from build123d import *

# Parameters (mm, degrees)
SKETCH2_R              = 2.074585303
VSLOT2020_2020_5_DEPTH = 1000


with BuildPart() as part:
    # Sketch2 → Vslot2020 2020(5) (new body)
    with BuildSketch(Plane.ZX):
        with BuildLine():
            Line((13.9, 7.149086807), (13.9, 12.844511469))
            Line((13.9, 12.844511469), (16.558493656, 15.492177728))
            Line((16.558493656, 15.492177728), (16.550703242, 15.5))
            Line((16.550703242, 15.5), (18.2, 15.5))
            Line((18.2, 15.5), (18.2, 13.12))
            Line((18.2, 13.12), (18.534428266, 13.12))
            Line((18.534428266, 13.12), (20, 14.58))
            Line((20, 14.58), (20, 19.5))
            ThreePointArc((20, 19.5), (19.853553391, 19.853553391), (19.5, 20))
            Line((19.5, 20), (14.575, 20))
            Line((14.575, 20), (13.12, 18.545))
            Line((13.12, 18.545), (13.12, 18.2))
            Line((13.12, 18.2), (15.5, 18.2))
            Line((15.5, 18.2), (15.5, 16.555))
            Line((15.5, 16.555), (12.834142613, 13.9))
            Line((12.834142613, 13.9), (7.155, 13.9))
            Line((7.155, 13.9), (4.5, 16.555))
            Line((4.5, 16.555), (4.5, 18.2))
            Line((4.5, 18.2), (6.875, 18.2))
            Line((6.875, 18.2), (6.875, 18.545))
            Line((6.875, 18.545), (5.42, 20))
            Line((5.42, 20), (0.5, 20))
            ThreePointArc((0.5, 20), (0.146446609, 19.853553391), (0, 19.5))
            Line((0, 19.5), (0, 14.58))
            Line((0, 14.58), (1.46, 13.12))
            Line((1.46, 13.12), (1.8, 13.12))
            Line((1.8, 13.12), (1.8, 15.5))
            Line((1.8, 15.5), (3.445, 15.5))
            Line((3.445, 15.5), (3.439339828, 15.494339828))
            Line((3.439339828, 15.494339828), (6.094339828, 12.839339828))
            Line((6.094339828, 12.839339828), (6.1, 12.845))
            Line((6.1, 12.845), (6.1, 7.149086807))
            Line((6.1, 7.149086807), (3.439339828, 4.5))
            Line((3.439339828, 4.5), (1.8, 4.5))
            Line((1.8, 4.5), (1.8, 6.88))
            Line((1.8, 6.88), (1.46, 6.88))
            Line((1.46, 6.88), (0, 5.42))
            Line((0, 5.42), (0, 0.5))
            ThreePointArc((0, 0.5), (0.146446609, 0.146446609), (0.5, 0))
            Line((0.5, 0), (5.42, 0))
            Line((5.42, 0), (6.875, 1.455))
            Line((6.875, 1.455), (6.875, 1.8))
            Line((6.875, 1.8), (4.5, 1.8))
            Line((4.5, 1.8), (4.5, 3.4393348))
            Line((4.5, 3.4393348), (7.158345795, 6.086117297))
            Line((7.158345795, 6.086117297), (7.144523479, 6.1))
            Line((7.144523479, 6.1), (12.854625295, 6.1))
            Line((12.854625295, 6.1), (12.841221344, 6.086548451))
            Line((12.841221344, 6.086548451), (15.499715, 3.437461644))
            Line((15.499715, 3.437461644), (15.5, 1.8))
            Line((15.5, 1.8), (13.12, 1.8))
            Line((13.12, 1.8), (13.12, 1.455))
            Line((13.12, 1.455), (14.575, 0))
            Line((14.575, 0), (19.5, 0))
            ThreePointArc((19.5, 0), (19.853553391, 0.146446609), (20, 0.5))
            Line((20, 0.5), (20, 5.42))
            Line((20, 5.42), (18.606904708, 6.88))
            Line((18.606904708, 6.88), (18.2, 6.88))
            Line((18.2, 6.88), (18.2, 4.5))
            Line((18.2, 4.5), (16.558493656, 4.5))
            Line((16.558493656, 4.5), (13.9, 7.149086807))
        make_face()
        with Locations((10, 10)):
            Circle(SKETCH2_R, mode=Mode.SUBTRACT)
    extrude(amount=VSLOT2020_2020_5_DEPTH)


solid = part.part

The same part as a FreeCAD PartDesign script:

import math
import FreeCAD as App
import Part
import Sketcher
from FreeCAD import Vector
Q = App.Units.Quantity

doc = App.newDocument("Part")
body = doc.addObject("PartDesign::Body", "Body")

sketch1 = body.newObject("Sketcher::SketchObject", "Sketch")
sketch1.AttachmentSupport = (doc.getObject("XZ_Plane"), [""])
sketch1.MapMode = "FlatFace"
sketch1.addGeometry([
    Part.LineSegment(Vector(7.149, 13.9, 0), Vector(12.845, 13.9, 0)),
    Part.LineSegment(Vector(12.845, 13.9, 0), Vector(15.492, 16.558, 0)),
    Part.LineSegment(Vector(15.492, 16.558, 0), Vector(15.5, 16.551, 0)),
    Part.LineSegment(Vector(15.5, 16.551, 0), Vector(15.5, 18.2, 0)),
    Part.LineSegment(Vector(15.5, 18.2, 0), Vector(13.12, 18.2, 0)),
    Part.LineSegment(Vector(13.12, 18.2, 0), Vector(13.12, 18.534, 0)),
    Part.LineSegment(Vector(13.12, 18.534, 0), Vector(14.58, 20, 0)),
    Part.LineSegment(Vector(14.58, 20, 0), Vector(19.5, 20, 0)),
    Part.ArcOfCircle(Part.Circle(Vector(19.5, 19.5, 0), Vector(0, 0, 1), 0.5), math.radians(0), math.radians(90)),
    Part.LineSegment(Vector(20, 19.5, 0), Vector(20, 14.575, 0)),
    Part.LineSegment(Vector(20, 14.575, 0), Vector(18.545, 13.12, 0)),
    Part.LineSegment(Vector(18.545, 13.12, 0), Vector(18.2, 13.12, 0)),
    Part.LineSegment(Vector(18.2, 13.12, 0), Vector(18.2, 15.5, 0)),
    Part.LineSegment(Vector(18.2, 15.5, 0), Vector(16.555, 15.5, 0)),
    Part.LineSegment(Vector(16.555, 15.5, 0), Vector(13.9, 12.834, 0)),
    Part.LineSegment(Vector(13.9, 12.834, 0), Vector(13.9, 7.155, 0)),
    Part.LineSegment(Vector(13.9, 7.155, 0), Vector(16.555, 4.5, 0)),
    Part.LineSegment(Vector(16.555, 4.5, 0), Vector(18.2, 4.5, 0)),
    Part.LineSegment(Vector(18.2, 4.5, 0), Vector(18.2, 6.875, 0)),
    Part.LineSegment(Vector(18.2, 6.875, 0), Vector(18.545, 6.875, 0)),
    Part.LineSegment(Vector(18.545, 6.875, 0), Vector(20, 5.42, 0)),
    Part.LineSegment(Vector(20, 5.42, 0), Vector(20, 0.5, 0)),
    Part.ArcOfCircle(Part.Circle(Vector(19.5, 0.5, 0), Vector(0, 0, 1), 0.5), math.radians(-90), math.radians(0)),
    Part.LineSegment(Vector(19.5, 0, 0), Vector(14.58, 0, 0)),
    Part.LineSegment(Vector(14.58, 0, 0), Vector(13.12, 1.46, 0)),
    Part.LineSegment(Vector(13.12, 1.46, 0), Vector(13.12, 1.8, 0)),
    Part.LineSegment(Vector(13.12, 1.8, 0), Vector(15.5, 1.8, 0)),
    Part.LineSegment(Vector(15.5, 1.8, 0), Vector(15.5, 3.445, 0)),
    Part.LineSegment(Vector(15.5, 3.445, 0), Vector(15.494, 3.439, 0)),
    Part.LineSegment(Vector(15.494, 3.439, 0), Vector(12.839, 6.094, 0)),
    Part.LineSegment(Vector(12.839, 6.094, 0), Vector(12.845, 6.1, 0)),
    Part.LineSegment(Vector(12.845, 6.1, 0), Vector(7.149, 6.1, 0)),
    Part.LineSegment(Vector(7.149, 6.1, 0), Vector(4.5, 3.439, 0)),
    Part.LineSegment(Vector(4.5, 3.439, 0), Vector(4.5, 1.8, 0)),
    Part.LineSegment(Vector(4.5, 1.8, 0), Vector(6.88, 1.8, 0)),
    Part.LineSegment(Vector(6.88, 1.8, 0), Vector(6.88, 1.46, 0)),
    Part.LineSegment(Vector(6.88, 1.46, 0), Vector(5.42, 0, 0)),
    Part.LineSegment(Vector(5.42, 0, 0), Vector(0.5, 0, 0)),
    Part.ArcOfCircle(Part.Circle(Vector(0.5, 0.5, 0), Vector(0, 0, 1), 0.5), math.radians(180), math.radians(270)),
    Part.LineSegment(Vector(0, 0.5, 0), Vector(0, 5.42, 0)),
    Part.LineSegment(Vector(0, 5.42, 0), Vector(1.455, 6.875, 0)),
    Part.LineSegment(Vector(1.455, 6.875, 0), Vector(1.8, 6.875, 0)),
    Part.LineSegment(Vector(1.8, 6.875, 0), Vector(1.8, 4.5, 0)),
    Part.LineSegment(Vector(1.8, 4.5, 0), Vector(3.439, 4.5, 0)),
    Part.LineSegment(Vector(3.439, 4.5, 0), Vector(6.086, 7.158, 0)),
    Part.LineSegment(Vector(6.086, 7.158, 0), Vector(6.1, 7.145, 0)),
    Part.LineSegment(Vector(6.1, 7.145, 0), Vector(6.1, 12.855, 0)),
    Part.LineSegment(Vector(6.1, 12.855, 0), Vector(6.087, 12.841, 0)),
    Part.LineSegment(Vector(6.087, 12.841, 0), Vector(3.437, 15.5, 0)),
    Part.LineSegment(Vector(3.437, 15.5, 0), Vector(1.8, 15.5, 0)),
    Part.LineSegment(Vector(1.8, 15.5, 0), Vector(1.8, 13.12, 0)),
    Part.LineSegment(Vector(1.8, 13.12, 0), Vector(1.455, 13.12, 0)),
    Part.LineSegment(Vector(1.455, 13.12, 0), Vector(0, 14.575, 0)),
    Part.LineSegment(Vector(0, 14.575, 0), Vector(0, 19.5, 0)),
    Part.ArcOfCircle(Part.Circle(Vector(0.5, 19.5, 0), Vector(0, 0, 1), 0.5), math.radians(90), math.radians(180)),
    Part.LineSegment(Vector(0.5, 20, 0), Vector(5.42, 20, 0)),
    Part.LineSegment(Vector(5.42, 20, 0), Vector(6.88, 18.607, 0)),
    Part.LineSegment(Vector(6.88, 18.607, 0), Vector(6.88, 18.2, 0)),
    Part.LineSegment(Vector(6.88, 18.2, 0), Vector(4.5, 18.2, 0)),
    Part.LineSegment(Vector(4.5, 18.2, 0), Vector(4.5, 16.558, 0)),
    Part.LineSegment(Vector(4.5, 16.558, 0), Vector(7.149, 13.9, 0)),
    Part.Circle(Vector(10, 10, 0), Vector(0, 0, 1), 2.075),
], False)
sketch1.addConstraint([
    Sketcher.Constraint("Coincident", 0, 2, 1, 1),
    Sketcher.Constraint("Coincident", 1, 2, 2, 1),
    Sketcher.Constraint("Coincident", 2, 2, 3, 1),
    Sketcher.Constraint("Coincident", 3, 2, 4, 1),
    Sketcher.Constraint("Coincident", 4, 2, 5, 1),
    Sketcher.Constraint("Coincident", 5, 2, 6, 1),
    Sketcher.Constraint("Coincident", 6, 2, 7, 1),
    Sketcher.Constraint("Tangent", 7, 2, 8, 2),
    Sketcher.Constraint("Tangent", 8, 1, 9, 1),
    Sketcher.Constraint("Coincident", 9, 2, 10, 1),
    Sketcher.Constraint("Coincident", 10, 2, 11, 1),
    Sketcher.Constraint("Coincident", 11, 2, 12, 1),
    Sketcher.Constraint("Coincident", 12, 2, 13, 1),
    Sketcher.Constraint("Coincident", 13, 2, 14, 1),
    Sketcher.Constraint("Coincident", 14, 2, 15, 1),
    Sketcher.Constraint("Coincident", 15, 2, 16, 1),
    Sketcher.Constraint("Coincident", 16, 2, 17, 1),
    Sketcher.Constraint("Coincident", 17, 2, 18, 1),
    Sketcher.Constraint("Coincident", 18, 2, 19, 1),
    Sketcher.Constraint("Coincident", 19, 2, 20, 1),
    Sketcher.Constraint("Coincident", 20, 2, 21, 1),
    Sketcher.Constraint("Tangent", 21, 2, 22, 2),
    Sketcher.Constraint("Tangent", 22, 1, 23, 1),
    Sketcher.Constraint("Coincident", 23, 2, 24, 1),
    Sketcher.Constraint("Coincident", 24, 2, 25, 1),
    Sketcher.Constraint("Coincident", 25, 2, 26, 1),
    Sketcher.Constraint("Coincident", 26, 2, 27, 1),
    Sketcher.Constraint("Coincident", 27, 2, 28, 1),
    Sketcher.Constraint("Coincident", 28, 2, 29, 1),
    Sketcher.Constraint("Coincident", 29, 2, 30, 1),
    Sketcher.Constraint("Coincident", 30, 2, 31, 1),
    Sketcher.Constraint("Coincident", 31, 2, 32, 1),
    Sketcher.Constraint("Coincident", 32, 2, 33, 1),
    Sketcher.Constraint("Coincident", 33, 2, 34, 1),
    Sketcher.Constraint("Coincident", 34, 2, 35, 1),
    Sketcher.Constraint("Coincident", 35, 2, 36, 1),
    Sketcher.Constraint("Coincident", 36, 2, 37, 1),
    Sketcher.Constraint("Tangent", 37, 2, 38, 2),
    Sketcher.Constraint("Tangent", 38, 1, 39, 1),
    Sketcher.Constraint("Coincident", 39, 2, 40, 1),
    Sketcher.Constraint("Coincident", 40, 2, 41, 1),
    Sketcher.Constraint("Coincident", 41, 2, 42, 1),
    Sketcher.Constraint("Coincident", 42, 2, 43, 1),
    Sketcher.Constraint("Coincident", 43, 2, 44, 1),
    Sketcher.Constraint("Coincident", 44, 2, 45, 1),
    Sketcher.Constraint("Coincident", 45, 2, 46, 1),
    Sketcher.Constraint("Coincident", 46, 2, 47, 1),
    Sketcher.Constraint("Coincident", 47, 2, 48, 1),
    Sketcher.Constraint("Coincident", 48, 2, 49, 1),
    Sketcher.Constraint("Coincident", 49, 2, 50, 1),
    Sketcher.Constraint("Coincident", 50, 2, 51, 1),
    Sketcher.Constraint("Coincident", 51, 2, 52, 1),
    Sketcher.Constraint("Coincident", 52, 2, 53, 1),
    Sketcher.Constraint("Tangent", 53, 2, 54, 2),
    Sketcher.Constraint("Tangent", 54, 1, 55, 1),
    Sketcher.Constraint("Coincident", 55, 2, 56, 1),
    Sketcher.Constraint("Coincident", 56, 2, 57, 1),
    Sketcher.Constraint("Coincident", 57, 2, 58, 1),
    Sketcher.Constraint("Coincident", 58, 2, 59, 1),
    Sketcher.Constraint("Coincident", 59, 2, 60, 1),
    Sketcher.Constraint("Coincident", 60, 2, 0, 1),
    Sketcher.Constraint("Horizontal", 0),
    Sketcher.Constraint("Vertical", 3),
    Sketcher.Constraint("Horizontal", 4),
    Sketcher.Constraint("Vertical", 5),
    Sketcher.Constraint("Horizontal", 7),
    Sketcher.Constraint("Vertical", 9),
    Sketcher.Constraint("Horizontal", 11),
    Sketcher.Constraint("Vertical", 12),
    Sketcher.Constraint("Horizontal", 13),
    Sketcher.Constraint("Vertical", 15),
    Sketcher.Constraint("Horizontal", 17),
    Sketcher.Constraint("Vertical", 18),
    Sketcher.Constraint("Horizontal", 19),
    Sketcher.Constraint("Vertical", 21),
    Sketcher.Constraint("Horizontal", 23),
    Sketcher.Constraint("Vertical", 25),
    Sketcher.Constraint("Horizontal", 26),
    Sketcher.Constraint("Vertical", 27),
    Sketcher.Constraint("Horizontal", 31),
    Sketcher.Constraint("Vertical", 33),
    Sketcher.Constraint("Horizontal", 34),
    Sketcher.Constraint("Vertical", 35),
    Sketcher.Constraint("Horizontal", 37),
    Sketcher.Constraint("Vertical", 39),
    Sketcher.Constraint("Horizontal", 41),
    Sketcher.Constraint("Vertical", 42),
    Sketcher.Constraint("Horizontal", 43),
    Sketcher.Constraint("Vertical", 46),
    Sketcher.Constraint("Vertical", 50),
    Sketcher.Constraint("Horizontal", 51),
    Sketcher.Constraint("Vertical", 53),
    Sketcher.Constraint("Horizontal", 55),
    Sketcher.Constraint("Vertical", 57),
    Sketcher.Constraint("Horizontal", 58),
    Sketcher.Constraint("Vertical", 59),
    Sketcher.Constraint("Equal", 8, 22),
    Sketcher.Constraint("Equal", 22, 38),
    Sketcher.Constraint("Equal", 38, 54),
    Sketcher.Constraint("PointOnObject", 22, 1, -1),
    Sketcher.Constraint("PointOnObject", 36, 2, -1),
    Sketcher.Constraint("PointOnObject", 38, 1, -2),
    Sketcher.Constraint("PointOnObject", 52, 2, -2),
    Sketcher.Constraint("Perpendicular", 1, 2),
    Sketcher.Constraint("Perpendicular", 2, 14),
    Sketcher.Constraint("Perpendicular", 10, 16),
    Sketcher.Constraint("Parallel", 16, 20),
    Sketcher.Constraint("Parallel", 20, 24),
    Sketcher.Constraint("Perpendicular", 24, 28),
    Sketcher.Constraint("Parallel", 24, 29),
    Sketcher.Constraint("Perpendicular", 29, 30),
    Sketcher.Constraint("Parallel", 30, 36),
    Sketcher.Constraint("Parallel", 36, 40),
    Sketcher.Constraint("Parallel", 32, 44),
    Sketcher.Constraint("Perpendicular", 44, 45),
    Sketcher.Constraint("Perpendicular", 47, 48),
    Sketcher.Constraint("Perpendicular", 40, 52),
    Sketcher.Constraint("Parallel", 48, 60),
    Sketcher.Constraint("Horizontal", 8, 3, 54, 3),
    Sketcher.Constraint("Horizontal", 28, 2, 32, 2),
    Sketcher.Constraint("Horizontal", 26, 2, 33, 2),
    Sketcher.Constraint("Horizontal", 24, 2, 35, 2),
    Sketcher.Constraint("Horizontal", 20, 2, 39, 2),
    Sketcher.Constraint("Horizontal", 19, 2, 40, 2),
    Sketcher.Constraint("Horizontal", 17, 2, 42, 2),
    Sketcher.Constraint("Horizontal", 13, 2, 49, 2),
    Sketcher.Constraint("Horizontal", 11, 2, 50, 2),
    Sketcher.Constraint("Horizontal", 9, 2, 52, 2),
    Sketcher.Constraint("Horizontal", 4, 2, 57, 2),
    Sketcher.Constraint("Horizontal", 1, 2, 59, 2),
    Sketcher.Constraint("Vertical", 8, 3, 22, 3),
    Sketcher.Constraint("Vertical", 13, 2, 16, 2),
    Sketcher.Constraint("Vertical", 12, 2, 17, 2),
    Sketcher.Constraint("Vertical", 10, 2, 19, 2),
    Sketcher.Constraint("Vertical", 6, 2, 23, 2),
    Sketcher.Constraint("Vertical", 5, 2, 24, 2),
    Sketcher.Constraint("Vertical", 3, 2, 26, 2),
    Sketcher.Constraint("Vertical", 42, 2, 49, 2),
    Sketcher.Constraint("Vertical", 40, 2, 51, 2),
    Sketcher.Constraint("Vertical", 36, 2, 55, 2),
    Sketcher.Constraint("Vertical", 35, 2, 56, 2),
    Sketcher.Constraint("Vertical", 33, 2, 58, 2),
    Sketcher.Constraint("Vertical", 31, 2, 60, 2),
    Sketcher.Constraint("Equal", 26, 34),
    Sketcher.Constraint("Equal", 23, 37),
    Sketcher.Constraint("Equal", 19, 41),
    Sketcher.Constraint("Equal", 58, 12),
    Sketcher.Constraint("Equal", 55, 21),
    Sketcher.Constraint("Equal", 17, 27),
    Sketcher.Constraint("Equal", 16, 29),
    Sketcher.Constraint("Equal", 28, 30),
    Sketcher.Constraint("Equal", 48, 60),
    Sketcher.Constraint("Radius", 8, Q("0.5 mm")),
    Sketcher.Constraint("DistanceX", -1, 1, 61, 3, Q("10 mm")),
    Sketcher.Constraint("DistanceY", -1, 1, 61, 3, Q("10 mm")),
    Sketcher.Constraint("DistanceY", -1, 1, 6, 2, Q("20 mm")),
    Sketcher.Constraint("DistanceX", -1, 1, 8, 1, Q("20 mm")),
    Sketcher.Constraint("DistanceX", 4, 2, 4, 1, Q("2.38 mm")),
    Sketcher.Constraint("DistanceX", 7, 1, 7, 2, Q("4.92 mm")),
    Sketcher.Constraint("DistanceY", 25, 1, 25, 2, Q("0.34 mm")),
    Sketcher.Constraint("DistanceY", -1, 1, 0, 2, Q("13.9 mm")),
    Sketcher.Constraint("DistanceX", -1, 1, 2, 2, Q("15.5 mm")),
    Sketcher.Constraint("DistanceY", -1, 1, 3, 2, Q("18.2 mm")),
    Sketcher.Constraint("DistanceX", -1, 1, 11, 2, Q("18.2 mm")),
    Sketcher.Constraint("DistanceY", -1, 1, 12, 2, Q("15.5 mm")),
    Sketcher.Constraint("DistanceX", -1, 1, 14, 2, Q("13.9 mm")),
    Sketcher.Constraint("DistanceY", -1, 1, 16, 2, Q("4.5 mm")),
    Sketcher.Constraint("DistanceX", -1, 1, 45, 2, Q("6.1 mm")),
    Sketcher.Constraint("Diameter", 61, Q("4.149171 mm")),
    Sketcher.Constraint("DistanceX", 11, 2, 11, 1, Q("0.345 mm")),
    Sketcher.Constraint("DistanceX", 13, 2, 13, 1, Q("1.645 mm")),
    Sketcher.Constraint("DistanceY", 46, 1, 46, 2, Q("5.710102 mm")),
    Sketcher.Constraint("Distance", 44, Q("3.751301 mm")),
    Sketcher.Constraint("DistanceY", 5, 1, 5, 2, Q("0.334428 mm")),
    Sketcher.Constraint("DistanceY", 33, 2, 33, 1, Q("1.63934 mm")),
    Sketcher.Constraint("Distance", 1, Q("3.752029 mm")),
    Sketcher.Constraint("Distance", 2, Q("0.01104 mm")),
    Sketcher.Constraint("Distance", 45, Q("0.01959 mm")),
    Sketcher.Constraint("Distance", 47, Q("0.01899 mm")),
    Sketcher.Constraint("Distance", 49, Q("1.637462 mm")),
    Sketcher.Constraint("DistanceX", 0, 1, 0, 2, Q("5.695425 mm")),
    Sketcher.Constraint("DistanceY", 57, 2, 57, 1, Q("0.406905 mm")),
])
pad1 = body.newObject("PartDesign::Pad", "Pad")
pad1.Profile = sketch1
pad1.Length = 1000
pad1.Reversed = True

doc.recompute()
